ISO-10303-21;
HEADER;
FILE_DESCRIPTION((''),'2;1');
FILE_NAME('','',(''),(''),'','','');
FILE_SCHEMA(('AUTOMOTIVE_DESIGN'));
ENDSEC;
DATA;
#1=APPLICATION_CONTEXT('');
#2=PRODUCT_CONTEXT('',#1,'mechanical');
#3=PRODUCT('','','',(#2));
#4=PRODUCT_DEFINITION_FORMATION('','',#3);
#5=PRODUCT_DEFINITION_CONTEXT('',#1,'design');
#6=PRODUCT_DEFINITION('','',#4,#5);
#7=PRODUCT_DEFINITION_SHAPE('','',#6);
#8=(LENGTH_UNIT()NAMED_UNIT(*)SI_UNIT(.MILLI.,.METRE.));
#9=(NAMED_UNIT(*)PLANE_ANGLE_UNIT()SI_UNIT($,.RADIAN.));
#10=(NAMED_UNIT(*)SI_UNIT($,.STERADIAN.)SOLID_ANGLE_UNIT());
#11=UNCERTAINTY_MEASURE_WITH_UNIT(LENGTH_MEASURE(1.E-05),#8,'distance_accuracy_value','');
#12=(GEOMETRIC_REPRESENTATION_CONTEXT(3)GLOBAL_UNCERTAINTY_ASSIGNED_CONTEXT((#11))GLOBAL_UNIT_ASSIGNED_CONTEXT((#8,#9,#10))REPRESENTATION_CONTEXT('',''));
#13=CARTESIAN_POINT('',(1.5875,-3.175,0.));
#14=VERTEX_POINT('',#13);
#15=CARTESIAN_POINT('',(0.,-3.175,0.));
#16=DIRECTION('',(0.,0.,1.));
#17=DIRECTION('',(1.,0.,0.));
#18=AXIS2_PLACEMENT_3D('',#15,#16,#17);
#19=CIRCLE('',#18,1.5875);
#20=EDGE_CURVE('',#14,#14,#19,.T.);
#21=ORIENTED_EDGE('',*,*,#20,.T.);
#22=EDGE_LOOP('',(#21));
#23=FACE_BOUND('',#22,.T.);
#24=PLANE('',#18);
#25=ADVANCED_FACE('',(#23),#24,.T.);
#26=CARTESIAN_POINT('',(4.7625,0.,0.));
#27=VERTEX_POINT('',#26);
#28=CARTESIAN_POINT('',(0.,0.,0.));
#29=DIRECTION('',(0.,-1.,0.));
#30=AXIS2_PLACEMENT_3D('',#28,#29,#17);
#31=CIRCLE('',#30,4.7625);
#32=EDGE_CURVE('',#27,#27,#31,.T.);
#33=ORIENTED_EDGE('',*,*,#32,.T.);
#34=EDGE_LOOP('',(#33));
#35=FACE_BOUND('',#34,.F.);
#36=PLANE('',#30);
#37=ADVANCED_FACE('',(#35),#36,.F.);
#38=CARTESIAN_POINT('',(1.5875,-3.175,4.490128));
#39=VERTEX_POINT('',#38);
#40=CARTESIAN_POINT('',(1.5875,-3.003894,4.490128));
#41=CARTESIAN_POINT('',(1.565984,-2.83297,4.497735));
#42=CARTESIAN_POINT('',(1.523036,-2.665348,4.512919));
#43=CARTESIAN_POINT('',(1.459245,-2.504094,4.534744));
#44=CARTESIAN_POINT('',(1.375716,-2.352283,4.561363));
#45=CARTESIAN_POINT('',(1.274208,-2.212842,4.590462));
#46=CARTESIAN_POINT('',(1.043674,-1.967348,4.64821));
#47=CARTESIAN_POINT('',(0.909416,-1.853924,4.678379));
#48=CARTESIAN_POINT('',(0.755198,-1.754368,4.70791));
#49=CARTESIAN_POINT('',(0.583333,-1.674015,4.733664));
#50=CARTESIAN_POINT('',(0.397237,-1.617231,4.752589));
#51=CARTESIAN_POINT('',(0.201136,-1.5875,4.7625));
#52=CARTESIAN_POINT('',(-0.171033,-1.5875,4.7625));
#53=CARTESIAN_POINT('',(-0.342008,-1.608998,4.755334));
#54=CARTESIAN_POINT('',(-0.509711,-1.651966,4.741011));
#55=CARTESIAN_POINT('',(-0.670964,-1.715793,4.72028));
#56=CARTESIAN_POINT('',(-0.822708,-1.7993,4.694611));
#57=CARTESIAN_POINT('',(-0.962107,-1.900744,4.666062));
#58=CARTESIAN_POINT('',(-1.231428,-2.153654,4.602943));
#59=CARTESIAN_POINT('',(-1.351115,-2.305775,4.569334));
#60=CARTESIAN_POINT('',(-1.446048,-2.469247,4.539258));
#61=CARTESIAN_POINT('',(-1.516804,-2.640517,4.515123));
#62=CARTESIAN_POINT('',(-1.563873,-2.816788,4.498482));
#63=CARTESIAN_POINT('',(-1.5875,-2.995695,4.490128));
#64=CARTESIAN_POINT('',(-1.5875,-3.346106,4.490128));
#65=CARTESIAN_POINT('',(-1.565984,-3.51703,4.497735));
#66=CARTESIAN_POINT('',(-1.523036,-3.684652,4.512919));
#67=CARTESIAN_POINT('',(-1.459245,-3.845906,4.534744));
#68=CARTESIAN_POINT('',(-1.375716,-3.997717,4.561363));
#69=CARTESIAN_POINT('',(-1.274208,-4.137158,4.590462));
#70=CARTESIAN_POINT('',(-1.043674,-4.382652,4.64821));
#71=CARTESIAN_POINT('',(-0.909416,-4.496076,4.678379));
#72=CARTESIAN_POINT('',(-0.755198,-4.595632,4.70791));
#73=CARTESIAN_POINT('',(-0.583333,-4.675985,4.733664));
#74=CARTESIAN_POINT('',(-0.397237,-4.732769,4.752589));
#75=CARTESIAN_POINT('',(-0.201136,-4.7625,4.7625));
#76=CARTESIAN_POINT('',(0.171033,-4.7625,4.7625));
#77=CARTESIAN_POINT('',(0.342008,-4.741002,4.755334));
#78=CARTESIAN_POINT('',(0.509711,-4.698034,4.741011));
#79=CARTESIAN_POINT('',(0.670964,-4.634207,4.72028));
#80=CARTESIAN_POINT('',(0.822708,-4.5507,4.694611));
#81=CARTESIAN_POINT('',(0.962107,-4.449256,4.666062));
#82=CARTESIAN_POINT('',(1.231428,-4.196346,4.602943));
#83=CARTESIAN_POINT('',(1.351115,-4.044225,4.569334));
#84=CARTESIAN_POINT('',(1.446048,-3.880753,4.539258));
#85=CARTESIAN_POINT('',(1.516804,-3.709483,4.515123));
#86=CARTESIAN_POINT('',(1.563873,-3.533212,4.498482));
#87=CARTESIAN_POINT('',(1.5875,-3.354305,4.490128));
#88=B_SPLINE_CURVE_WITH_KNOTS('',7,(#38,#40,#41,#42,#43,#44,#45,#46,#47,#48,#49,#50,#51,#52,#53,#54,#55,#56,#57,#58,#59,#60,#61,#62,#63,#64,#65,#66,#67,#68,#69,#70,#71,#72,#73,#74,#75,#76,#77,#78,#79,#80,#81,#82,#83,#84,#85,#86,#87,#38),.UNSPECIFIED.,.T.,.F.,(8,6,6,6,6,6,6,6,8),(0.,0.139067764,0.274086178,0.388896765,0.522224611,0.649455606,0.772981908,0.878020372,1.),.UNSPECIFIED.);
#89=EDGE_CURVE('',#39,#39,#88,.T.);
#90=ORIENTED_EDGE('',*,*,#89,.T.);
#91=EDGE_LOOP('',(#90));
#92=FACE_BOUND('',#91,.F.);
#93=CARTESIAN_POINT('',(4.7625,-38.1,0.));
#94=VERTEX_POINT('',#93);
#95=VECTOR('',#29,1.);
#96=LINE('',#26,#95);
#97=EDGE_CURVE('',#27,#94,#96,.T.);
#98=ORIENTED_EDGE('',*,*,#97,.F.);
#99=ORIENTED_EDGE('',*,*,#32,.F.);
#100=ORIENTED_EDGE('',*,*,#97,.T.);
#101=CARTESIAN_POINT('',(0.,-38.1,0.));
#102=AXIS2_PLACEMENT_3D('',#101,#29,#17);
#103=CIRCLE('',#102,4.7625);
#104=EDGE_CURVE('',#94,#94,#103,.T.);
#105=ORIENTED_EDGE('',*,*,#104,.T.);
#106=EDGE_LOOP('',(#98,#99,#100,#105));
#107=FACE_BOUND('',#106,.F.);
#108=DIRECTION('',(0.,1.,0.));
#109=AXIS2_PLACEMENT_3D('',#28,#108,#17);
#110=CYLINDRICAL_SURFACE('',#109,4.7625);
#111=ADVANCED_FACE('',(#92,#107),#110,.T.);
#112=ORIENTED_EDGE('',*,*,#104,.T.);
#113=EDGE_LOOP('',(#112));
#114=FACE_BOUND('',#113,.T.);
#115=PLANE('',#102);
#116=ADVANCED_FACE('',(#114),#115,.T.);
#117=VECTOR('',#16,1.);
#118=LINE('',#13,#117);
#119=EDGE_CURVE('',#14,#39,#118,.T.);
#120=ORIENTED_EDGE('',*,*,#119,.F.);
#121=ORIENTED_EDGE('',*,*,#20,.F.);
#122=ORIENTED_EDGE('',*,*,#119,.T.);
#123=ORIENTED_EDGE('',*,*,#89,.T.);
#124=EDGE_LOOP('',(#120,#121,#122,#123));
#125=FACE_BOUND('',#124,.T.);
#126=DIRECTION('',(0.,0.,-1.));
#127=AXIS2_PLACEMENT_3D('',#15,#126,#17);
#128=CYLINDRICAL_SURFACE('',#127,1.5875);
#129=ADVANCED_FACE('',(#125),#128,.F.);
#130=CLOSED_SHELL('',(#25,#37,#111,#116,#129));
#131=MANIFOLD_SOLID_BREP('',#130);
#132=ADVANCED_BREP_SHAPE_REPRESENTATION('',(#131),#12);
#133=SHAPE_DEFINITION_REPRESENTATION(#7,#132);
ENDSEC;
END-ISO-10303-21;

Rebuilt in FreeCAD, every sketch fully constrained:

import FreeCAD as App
import Part
import Sketcher
Q = App.Units.Quantity

doc = App.newDocument("Part")
body = doc.addObject("PartDesign::Body", "Body")

# Sketch on XZ plane
sketch1 = body.newObject("Sketcher::SketchObject", "Sketch")
sketch1.AttachmentSupport = (doc.getObject("XZ_Plane"), [""])
sketch1.MapMode = "FlatFace"
sketch1.addGeometry(Part.Circle(App.Vector(0, 0, 0), App.Vector(0, 0, 1), 4.8), False)
sketch1.addConstraint([
    Sketcher.Constraint("Coincident", 0, 3, -1, 1),
    Sketcher.Constraint("Diameter", 0, Q("0.375 in")),
])
pad1 = body.newObject("PartDesign::Pad", "Pad")
pad1.Profile = sketch1
pad1.Length = Q("1.5 in")

# Sketch on XY plane
sketch2 = body.newObject("Sketcher::SketchObject", "Sketch001")
sketch2.AttachmentSupport = (doc.getObject("XY_Plane"), [""])
sketch2.MapMode = "FlatFace"
sketch2.addGeometry(Part.Circle(App.Vector(0, -3.2, 0), App.Vector(0, 0, 1), 1.6), False)
sketch2.addConstraint([
    Sketcher.Constraint("PointOnObject", 0, 3, -2),
    Sketcher.Constraint("Diameter", 0, Q("0.125 in")),
    Sketcher.Constraint("DistanceY", 0, 3, -1, 1, Q("0.125 in")),
])
pocket1 = body.newObject("PartDesign::Pocket", "Pocket")
pocket1.Profile = sketch2
pocket1.Length = Q("1 in")
pocket1.Reversed = True

doc.recompute()
